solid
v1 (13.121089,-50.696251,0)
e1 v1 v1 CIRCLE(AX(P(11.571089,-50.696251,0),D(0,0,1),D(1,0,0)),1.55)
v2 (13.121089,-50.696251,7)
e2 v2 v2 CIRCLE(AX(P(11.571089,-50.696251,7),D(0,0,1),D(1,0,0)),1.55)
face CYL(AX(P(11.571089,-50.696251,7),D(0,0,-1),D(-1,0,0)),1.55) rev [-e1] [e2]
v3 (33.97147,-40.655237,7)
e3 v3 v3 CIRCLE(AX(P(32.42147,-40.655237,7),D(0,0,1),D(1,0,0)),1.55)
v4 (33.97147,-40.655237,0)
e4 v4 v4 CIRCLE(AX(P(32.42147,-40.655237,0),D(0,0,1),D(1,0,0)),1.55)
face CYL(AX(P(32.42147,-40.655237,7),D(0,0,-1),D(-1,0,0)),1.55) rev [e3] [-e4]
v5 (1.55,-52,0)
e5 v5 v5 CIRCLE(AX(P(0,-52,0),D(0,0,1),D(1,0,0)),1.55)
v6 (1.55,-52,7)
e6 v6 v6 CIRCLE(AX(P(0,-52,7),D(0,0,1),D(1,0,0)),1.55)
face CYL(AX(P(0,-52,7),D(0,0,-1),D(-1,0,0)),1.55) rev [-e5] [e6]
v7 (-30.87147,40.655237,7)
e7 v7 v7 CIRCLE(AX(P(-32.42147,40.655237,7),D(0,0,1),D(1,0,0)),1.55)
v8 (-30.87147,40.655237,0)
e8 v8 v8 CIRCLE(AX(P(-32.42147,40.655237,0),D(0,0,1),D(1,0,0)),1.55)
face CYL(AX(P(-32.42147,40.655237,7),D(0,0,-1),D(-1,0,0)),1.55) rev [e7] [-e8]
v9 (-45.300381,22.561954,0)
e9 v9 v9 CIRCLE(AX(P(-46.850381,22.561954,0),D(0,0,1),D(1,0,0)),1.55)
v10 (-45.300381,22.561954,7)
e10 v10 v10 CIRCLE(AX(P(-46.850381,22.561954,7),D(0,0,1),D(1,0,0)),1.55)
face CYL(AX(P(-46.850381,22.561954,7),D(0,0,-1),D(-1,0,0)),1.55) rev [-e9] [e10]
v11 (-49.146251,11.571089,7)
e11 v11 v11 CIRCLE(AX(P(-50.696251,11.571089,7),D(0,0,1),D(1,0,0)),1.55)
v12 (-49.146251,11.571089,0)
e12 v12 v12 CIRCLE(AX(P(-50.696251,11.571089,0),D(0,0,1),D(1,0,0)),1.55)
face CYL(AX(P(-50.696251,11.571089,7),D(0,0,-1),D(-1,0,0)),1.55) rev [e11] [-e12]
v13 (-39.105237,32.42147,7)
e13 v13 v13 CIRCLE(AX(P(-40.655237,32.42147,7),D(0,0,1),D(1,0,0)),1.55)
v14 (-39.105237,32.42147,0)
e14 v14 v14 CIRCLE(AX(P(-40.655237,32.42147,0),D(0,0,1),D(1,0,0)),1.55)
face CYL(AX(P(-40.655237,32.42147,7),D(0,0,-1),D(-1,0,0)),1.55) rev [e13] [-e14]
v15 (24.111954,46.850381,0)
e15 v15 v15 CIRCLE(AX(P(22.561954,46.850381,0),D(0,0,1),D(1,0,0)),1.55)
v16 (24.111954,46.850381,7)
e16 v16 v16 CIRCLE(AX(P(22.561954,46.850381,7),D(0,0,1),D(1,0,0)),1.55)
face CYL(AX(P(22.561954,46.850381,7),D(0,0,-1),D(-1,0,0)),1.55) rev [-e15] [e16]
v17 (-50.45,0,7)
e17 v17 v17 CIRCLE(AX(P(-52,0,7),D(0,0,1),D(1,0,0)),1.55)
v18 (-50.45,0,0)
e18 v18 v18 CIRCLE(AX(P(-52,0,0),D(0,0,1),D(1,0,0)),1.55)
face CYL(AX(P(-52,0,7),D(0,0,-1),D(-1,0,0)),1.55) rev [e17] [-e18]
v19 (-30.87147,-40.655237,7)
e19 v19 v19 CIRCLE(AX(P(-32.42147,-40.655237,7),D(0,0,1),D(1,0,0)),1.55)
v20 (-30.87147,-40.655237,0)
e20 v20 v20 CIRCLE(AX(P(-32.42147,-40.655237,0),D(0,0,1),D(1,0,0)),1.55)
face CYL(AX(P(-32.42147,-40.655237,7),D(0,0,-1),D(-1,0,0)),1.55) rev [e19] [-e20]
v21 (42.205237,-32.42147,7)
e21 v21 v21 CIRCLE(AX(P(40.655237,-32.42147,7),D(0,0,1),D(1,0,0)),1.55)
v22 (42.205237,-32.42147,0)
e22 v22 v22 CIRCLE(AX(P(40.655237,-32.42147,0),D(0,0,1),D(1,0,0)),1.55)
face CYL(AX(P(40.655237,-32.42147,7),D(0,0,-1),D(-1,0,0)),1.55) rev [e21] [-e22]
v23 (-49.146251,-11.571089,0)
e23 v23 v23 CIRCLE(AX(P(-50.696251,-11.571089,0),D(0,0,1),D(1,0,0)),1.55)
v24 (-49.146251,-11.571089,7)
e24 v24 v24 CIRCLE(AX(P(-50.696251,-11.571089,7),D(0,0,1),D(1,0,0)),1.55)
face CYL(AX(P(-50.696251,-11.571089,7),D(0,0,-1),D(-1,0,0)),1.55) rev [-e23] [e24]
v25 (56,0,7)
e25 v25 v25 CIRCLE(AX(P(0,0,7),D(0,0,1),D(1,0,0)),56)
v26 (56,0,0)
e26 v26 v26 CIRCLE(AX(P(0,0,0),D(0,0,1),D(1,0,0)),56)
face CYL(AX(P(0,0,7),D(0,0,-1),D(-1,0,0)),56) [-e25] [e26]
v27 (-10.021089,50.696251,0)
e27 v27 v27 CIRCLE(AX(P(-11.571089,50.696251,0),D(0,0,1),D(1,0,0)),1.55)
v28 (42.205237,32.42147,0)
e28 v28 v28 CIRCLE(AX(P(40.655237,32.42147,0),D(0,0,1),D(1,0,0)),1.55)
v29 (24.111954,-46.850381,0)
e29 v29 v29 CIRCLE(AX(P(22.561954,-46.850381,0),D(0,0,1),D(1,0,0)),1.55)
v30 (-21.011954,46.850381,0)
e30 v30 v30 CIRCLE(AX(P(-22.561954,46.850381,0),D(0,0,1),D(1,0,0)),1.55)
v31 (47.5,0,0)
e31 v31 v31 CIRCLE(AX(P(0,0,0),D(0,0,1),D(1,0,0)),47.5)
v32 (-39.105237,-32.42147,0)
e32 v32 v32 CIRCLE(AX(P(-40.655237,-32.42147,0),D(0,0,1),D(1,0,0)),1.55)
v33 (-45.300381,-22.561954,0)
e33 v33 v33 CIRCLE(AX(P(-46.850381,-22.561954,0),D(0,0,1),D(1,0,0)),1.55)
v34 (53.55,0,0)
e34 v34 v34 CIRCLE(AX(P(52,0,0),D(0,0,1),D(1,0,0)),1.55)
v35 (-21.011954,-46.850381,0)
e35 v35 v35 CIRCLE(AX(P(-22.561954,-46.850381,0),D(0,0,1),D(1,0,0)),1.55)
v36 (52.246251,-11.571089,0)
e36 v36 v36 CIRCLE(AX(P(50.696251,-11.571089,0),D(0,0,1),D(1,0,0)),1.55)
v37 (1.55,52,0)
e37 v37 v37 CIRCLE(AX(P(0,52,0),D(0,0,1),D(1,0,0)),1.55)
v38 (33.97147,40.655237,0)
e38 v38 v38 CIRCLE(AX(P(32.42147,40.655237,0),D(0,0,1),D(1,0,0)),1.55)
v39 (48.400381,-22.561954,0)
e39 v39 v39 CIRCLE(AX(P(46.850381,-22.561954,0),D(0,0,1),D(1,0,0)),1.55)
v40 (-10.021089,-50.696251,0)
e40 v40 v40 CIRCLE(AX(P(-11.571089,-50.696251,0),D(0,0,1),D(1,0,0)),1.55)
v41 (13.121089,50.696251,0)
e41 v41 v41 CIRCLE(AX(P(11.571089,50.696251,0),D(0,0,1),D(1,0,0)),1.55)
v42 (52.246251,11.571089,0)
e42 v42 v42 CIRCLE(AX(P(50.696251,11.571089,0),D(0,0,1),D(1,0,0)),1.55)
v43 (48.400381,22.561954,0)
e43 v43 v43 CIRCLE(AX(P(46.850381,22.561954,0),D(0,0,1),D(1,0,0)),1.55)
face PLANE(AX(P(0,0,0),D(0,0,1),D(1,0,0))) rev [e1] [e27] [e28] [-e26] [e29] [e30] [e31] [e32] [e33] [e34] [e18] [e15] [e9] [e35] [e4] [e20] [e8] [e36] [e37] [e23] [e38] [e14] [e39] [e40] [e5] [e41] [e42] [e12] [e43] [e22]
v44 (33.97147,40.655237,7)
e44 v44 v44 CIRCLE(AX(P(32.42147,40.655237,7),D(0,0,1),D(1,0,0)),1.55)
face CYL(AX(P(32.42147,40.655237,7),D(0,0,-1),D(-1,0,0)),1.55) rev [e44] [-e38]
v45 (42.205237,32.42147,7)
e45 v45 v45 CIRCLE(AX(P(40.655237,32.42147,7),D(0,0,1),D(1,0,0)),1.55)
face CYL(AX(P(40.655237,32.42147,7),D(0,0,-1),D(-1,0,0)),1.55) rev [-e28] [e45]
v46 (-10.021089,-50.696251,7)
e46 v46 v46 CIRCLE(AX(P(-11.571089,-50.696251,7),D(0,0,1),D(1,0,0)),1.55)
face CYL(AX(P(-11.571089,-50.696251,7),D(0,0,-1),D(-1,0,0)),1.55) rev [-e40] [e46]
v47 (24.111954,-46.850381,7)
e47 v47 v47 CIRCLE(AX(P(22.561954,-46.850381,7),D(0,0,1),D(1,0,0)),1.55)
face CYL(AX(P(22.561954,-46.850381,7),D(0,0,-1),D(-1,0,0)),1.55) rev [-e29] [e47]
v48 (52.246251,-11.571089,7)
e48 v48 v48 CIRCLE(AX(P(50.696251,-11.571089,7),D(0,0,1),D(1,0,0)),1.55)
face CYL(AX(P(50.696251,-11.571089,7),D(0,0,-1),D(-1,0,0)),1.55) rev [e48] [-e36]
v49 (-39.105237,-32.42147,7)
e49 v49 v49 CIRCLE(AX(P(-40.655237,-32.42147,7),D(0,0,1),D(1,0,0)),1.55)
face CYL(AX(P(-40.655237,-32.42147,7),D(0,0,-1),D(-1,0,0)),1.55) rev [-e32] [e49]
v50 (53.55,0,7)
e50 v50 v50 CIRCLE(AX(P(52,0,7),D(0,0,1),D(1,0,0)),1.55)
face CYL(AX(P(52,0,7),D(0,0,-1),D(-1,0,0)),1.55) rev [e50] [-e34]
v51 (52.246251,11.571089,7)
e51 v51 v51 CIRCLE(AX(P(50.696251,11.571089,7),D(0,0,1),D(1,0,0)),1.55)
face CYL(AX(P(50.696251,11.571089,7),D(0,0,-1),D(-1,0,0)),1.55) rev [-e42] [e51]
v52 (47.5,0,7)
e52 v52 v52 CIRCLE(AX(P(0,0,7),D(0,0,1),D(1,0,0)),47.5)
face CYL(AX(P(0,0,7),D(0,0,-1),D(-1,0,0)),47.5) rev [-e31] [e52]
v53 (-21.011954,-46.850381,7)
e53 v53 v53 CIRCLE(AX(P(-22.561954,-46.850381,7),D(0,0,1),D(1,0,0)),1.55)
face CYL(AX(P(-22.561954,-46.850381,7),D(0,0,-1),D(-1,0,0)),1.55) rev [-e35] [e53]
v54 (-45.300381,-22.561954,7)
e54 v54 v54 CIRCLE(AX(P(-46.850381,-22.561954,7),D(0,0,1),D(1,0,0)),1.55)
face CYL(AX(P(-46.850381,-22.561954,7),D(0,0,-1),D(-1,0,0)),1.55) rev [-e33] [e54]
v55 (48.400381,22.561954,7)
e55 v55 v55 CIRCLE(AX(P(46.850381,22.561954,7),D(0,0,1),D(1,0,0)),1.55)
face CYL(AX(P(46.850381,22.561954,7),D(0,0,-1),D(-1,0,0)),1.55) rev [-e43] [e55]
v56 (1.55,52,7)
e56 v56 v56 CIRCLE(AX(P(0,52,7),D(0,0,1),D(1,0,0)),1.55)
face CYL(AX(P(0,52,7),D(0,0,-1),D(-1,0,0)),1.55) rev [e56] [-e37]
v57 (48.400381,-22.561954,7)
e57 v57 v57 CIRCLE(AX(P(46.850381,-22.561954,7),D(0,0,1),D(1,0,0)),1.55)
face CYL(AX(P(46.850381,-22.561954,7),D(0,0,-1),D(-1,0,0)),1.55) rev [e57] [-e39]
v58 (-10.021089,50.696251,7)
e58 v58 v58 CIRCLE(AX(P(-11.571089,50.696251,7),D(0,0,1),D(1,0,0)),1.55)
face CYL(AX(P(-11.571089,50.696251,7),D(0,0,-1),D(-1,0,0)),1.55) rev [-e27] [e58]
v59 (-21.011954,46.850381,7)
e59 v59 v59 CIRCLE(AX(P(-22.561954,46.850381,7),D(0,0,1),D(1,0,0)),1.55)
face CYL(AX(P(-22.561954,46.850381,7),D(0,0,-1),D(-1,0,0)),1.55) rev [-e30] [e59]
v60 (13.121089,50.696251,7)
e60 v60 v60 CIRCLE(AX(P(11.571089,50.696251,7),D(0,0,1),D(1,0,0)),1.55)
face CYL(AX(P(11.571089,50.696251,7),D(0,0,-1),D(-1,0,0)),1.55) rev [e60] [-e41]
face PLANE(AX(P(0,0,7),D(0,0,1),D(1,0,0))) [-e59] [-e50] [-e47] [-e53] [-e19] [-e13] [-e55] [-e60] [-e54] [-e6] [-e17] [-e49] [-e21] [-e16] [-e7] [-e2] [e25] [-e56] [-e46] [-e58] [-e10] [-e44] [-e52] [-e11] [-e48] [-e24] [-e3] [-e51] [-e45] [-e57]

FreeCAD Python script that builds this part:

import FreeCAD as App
import Part
import Sketcher
from FreeCAD import Vector
Q = App.Units.Quantity

doc = App.newDocument("Part")
params = doc.addObject("Spreadsheet::Sheet", "Params")
for row, (alias, value) in enumerate([
    ("sketch1_diameter", "112 mm"),
    ("sketch1_diameter2", "95 mm"),
    ("sketch1_diameter3", "3.1 mm"),
    ("pad1_length", "7 mm"),
], start=1):
    params.set(f"A{row}", alias)
    params.set(f"B{row}", "=" + value)
    params.setAlias(f"B{row}", alias)

body = doc.addObject("PartDesign::Body", "Body")

# Sketch on XY plane
sketch1 = body.newObject("Sketcher::SketchObject", "Sketch")
sketch1.AttachmentSupport = (doc.getObject("XY_Plane"), [""])
sketch1.MapMode = "FlatFace"
sketch1.addGeometry([
    Part.Circle(Vector(0, 0, 0), Vector(0, 0, 1), 56),  # 0
    Part.Circle(Vector(-32.4, -40.7, 0), Vector(0, 0, 1), 1.6),  # 1
    Part.Circle(Vector(-40.7, -32.4, 0), Vector(0, 0, 1), 1.6),  # 2
    Part.Circle(Vector(-22.6, -46.9, 0), Vector(0, 0, 1), 1.6),  # 3
    Part.Circle(Vector(-11.6, -50.7, 0), Vector(0, 0, 1), 1.6),  # 4
    Part.Circle(Vector(0, -52, 0), Vector(0, 0, 1), 1.6),  # 5
    Part.Circle(Vector(-46.9, -22.6, 0), Vector(0, 0, 1), 1.6),  # 6
    Part.Circle(Vector(-50.7, -11.6, 0), Vector(0, 0, 1), 1.6),  # 7
    Part.Circle(Vector(-52, 0, 0), Vector(0, 0, 1), 1.6),  # 8
    Part.Circle(Vector(0, 0, 0), Vector(0, 0, 1), 47.5),  # 9
    Part.Circle(Vector(11.6, -50.7, 0), Vector(0, 0, 1), 1.6),  # 10
    Part.Circle(Vector(22.6, -46.9, 0), Vector(0, 0, 1), 1.6),  # 11
    Part.Circle(Vector(32.4, -40.7, 0), Vector(0, 0, 1), 1.6),  # 12
    Part.Circle(Vector(40.7, -32.4, 0), Vector(0, 0, 1), 1.6),  # 13
    Part.Circle(Vector(46.9, -22.6, 0), Vector(0, 0, 1), 1.6),  # 14
    Part.Circle(Vector(50.7, -11.6, 0), Vector(0, 0, 1), 1.6),  # 15
    Part.Circle(Vector(52, 0, 0), Vector(0, 0, 1), 1.6),  # 16
    Part.Circle(Vector(-50.7, 11.6, 0), Vector(0, 0, 1), 1.6),  # 17
    Part.Circle(Vector(-46.9, 22.6, 0), Vector(0, 0, 1), 1.6),  # 18
    Part.Circle(Vector(-40.7, 32.4, 0), Vector(0, 0, 1), 1.6),  # 19
    Part.Circle(Vector(-32.4, 40.7, 0), Vector(0, 0, 1), 1.6),  # 20
    Part.Circle(Vector(-22.6, 46.9, 0), Vector(0, 0, 1), 1.6),  # 21
    Part.Circle(Vector(-11.6, 50.7, 0), Vector(0, 0, 1), 1.6),  # 22
    Part.Circle(Vector(0, 52, 0), Vector(0, 0, 1), 1.6),  # 23
    Part.Circle(Vector(50.7, 11.6, 0), Vector(0, 0, 1), 1.6),  # 24
    Part.Circle(Vector(46.9, 22.6, 0), Vector(0, 0, 1), 1.6),  # 25
    Part.Circle(Vector(11.6, 50.7, 0), Vector(0, 0, 1), 1.6),  # 26
    Part.Circle(Vector(22.6, 46.9, 0), Vector(0, 0, 1), 1.6),  # 27
    Part.Circle(Vector(40.7, 32.4, 0), Vector(0, 0, 1), 1.6),  # 28
    Part.Circle(Vector(32.4, 40.7, 0), Vector(0, 0, 1), 1.6),  # 29
], False)
sketch1.addConstraint([
    Sketcher.Constraint("Coincident", 0, 3, -1, 1),
    Sketcher.Constraint("Coincident", 9, 3, -1, 1),
    Sketcher.Constraint("Equal", 1, 2),
    Sketcher.Constraint("Equal", 2, 3),
    Sketcher.Constraint("Equal", 3, 4),
    Sketcher.Constraint("Equal", 4, 5),
    Sketcher.Constraint("Equal", 5, 6),
    Sketcher.Constraint("Equal", 6, 7),
    Sketcher.Constraint("Equal", 7, 8),
    Sketcher.Constraint("Equal", 8, 10),
    Sketcher.Constraint("Equal", 10, 11),
    Sketcher.Constraint("Equal", 11, 12),
    Sketcher.Constraint("Equal", 12, 13),
    Sketcher.Constraint("Equal", 13, 14),
    Sketcher.Constraint("Equal", 14, 15),
    Sketcher.Constraint("Equal", 15, 16),
    Sketcher.Constraint("Equal", 16, 17),
    Sketcher.Constraint("Equal", 17, 18),
    Sketcher.Constraint("Equal", 18, 19),
    Sketcher.Constraint("Equal", 19, 20),
    Sketcher.Constraint("Equal", 20, 21),
    Sketcher.Constraint("Equal", 21, 22),
    Sketcher.Constraint("Equal", 22, 23),
    Sketcher.Constraint("Equal", 23, 24),
    Sketcher.Constraint("Equal", 24, 25),
    Sketcher.Constraint("Equal", 25, 26),
    Sketcher.Constraint("Equal", 26, 27),
    Sketcher.Constraint("Equal", 27, 28),
    Sketcher.Constraint("Equal", 28, 29),
    Sketcher.Constraint("Symmetric", 8, 3, 16, 3, -1, 1),
    Sketcher.Constraint("Symmetric", 15, 3, 17, 3, -1, 1),
    Sketcher.Constraint("Symmetric", 14, 3, 18, 3, -1, 1),
    Sketcher.Constraint("Symmetric", 13, 3, 19, 3, -1, 1),
    Sketcher.Constraint("Symmetric", 12, 3, 20, 3, -1, 1),
    Sketcher.Constraint("Symmetric", 11, 3, 21, 3, -1, 1),
    Sketcher.Constraint("Symmetric", 10, 3, 22, 3, -1, 1),
    Sketcher.Constraint("Symmetric", 5, 3, 23, 3, -1, 1),
    Sketcher.Constraint("Symmetric", 7, 3, 24, 3, -1, 1),
    Sketcher.Constraint("Symmetric", 6, 3, 25, 3, -1, 1),
    Sketcher.Constraint("Symmetric", 4, 3, 26, 3, -1, 1),
    Sketcher.Constraint("Symmetric", 3, 3, 27, 3, -1, 1),
    Sketcher.Constraint("Symmetric", 2, 3, 28, 3, -1, 1),
    Sketcher.Constraint("Symmetric", 1, 3, 29, 3, -1, 1),
    Sketcher.Constraint("Symmetric", 4, 3, 10, 3, -2),
    Sketcher.Constraint("Symmetric", 3, 3, 11, 3, -2),
    Sketcher.Constraint("Symmetric", 1, 3, 12, 3, -2),
    Sketcher.Constraint("Symmetric", 2, 3, 13, 3, -2),
    Sketcher.Constraint("Symmetric", 6, 3, 14, 3, -2),
    Sketcher.Constraint("Symmetric", 7, 3, 15, 3, -2),
    Sketcher.Constraint("PointOnObject", 5, 3, -2),
    Sketcher.Constraint("PointOnObject", 8, 3, -1),
    Sketcher.Constraint("Diameter", 0, Q("112 mm")),
    Sketcher.Constraint("Diameter", 9, Q("95 mm")),
    Sketcher.Constraint("Diameter", 1, Q("3.1 mm")),
    Sketcher.Constraint("DistanceY", 5, 3, -1, 1, Q("52 mm")),
    Sketcher.Constraint("DistanceX", 8, 3, -1, 1, Q("52 mm")),
    Sketcher.Constraint("DistanceX", 1, 3, -1, 1, Q("32.42147 mm")),
    Sketcher.Constraint("DistanceY", 2, 3, -1, 1, Q("32.42147 mm")),
    Sketcher.Constraint("DistanceY", 3, 3, -1, 1, Q("46.850381 mm")),
    Sketcher.Constraint("DistanceX", 4, 3, -1, 1, Q("11.571089 mm")),
    Sketcher.Constraint("DistanceY", 4, 3, -1, 1, Q("50.696251 mm")),
    Sketcher.Constraint("DistanceX", 6, 3, -1, 1, Q("46.850381 mm")),
    Sketcher.Constraint("DistanceX", 7, 3, -1, 1, Q("50.696251 mm")),
    Sketcher.Constraint("DistanceY", 7, 3, -1, 1, Q("11.571089 mm")),
    Sketcher.Constraint("DistanceX", 2, 3, 4, 3, Q("29.084149 mm")),
    Sketcher.Constraint("DistanceY", 1, 3, 7, 3, Q("29.084149 mm")),
    Sketcher.Constraint("DistanceX", 3, 3, 11, 3, Q("45.123909 mm")),
    Sketcher.Constraint("DistanceY", 6, 3, 18, 3, Q("45.123909 mm")),
])
sketch1.setExpression("Constraints[51]", "Params.sketch1_diameter")
sketch1.setExpression("Constraints[52]", "Params.sketch1_diameter2")
sketch1.setExpression("Constraints[53]", "Params.sketch1_diameter3")
pad1 = body.newObject("PartDesign::Pad", "Pad")
pad1.Profile = sketch1
pad1.setExpression("Length", "Params.pad1_length")

doc.recompute()
